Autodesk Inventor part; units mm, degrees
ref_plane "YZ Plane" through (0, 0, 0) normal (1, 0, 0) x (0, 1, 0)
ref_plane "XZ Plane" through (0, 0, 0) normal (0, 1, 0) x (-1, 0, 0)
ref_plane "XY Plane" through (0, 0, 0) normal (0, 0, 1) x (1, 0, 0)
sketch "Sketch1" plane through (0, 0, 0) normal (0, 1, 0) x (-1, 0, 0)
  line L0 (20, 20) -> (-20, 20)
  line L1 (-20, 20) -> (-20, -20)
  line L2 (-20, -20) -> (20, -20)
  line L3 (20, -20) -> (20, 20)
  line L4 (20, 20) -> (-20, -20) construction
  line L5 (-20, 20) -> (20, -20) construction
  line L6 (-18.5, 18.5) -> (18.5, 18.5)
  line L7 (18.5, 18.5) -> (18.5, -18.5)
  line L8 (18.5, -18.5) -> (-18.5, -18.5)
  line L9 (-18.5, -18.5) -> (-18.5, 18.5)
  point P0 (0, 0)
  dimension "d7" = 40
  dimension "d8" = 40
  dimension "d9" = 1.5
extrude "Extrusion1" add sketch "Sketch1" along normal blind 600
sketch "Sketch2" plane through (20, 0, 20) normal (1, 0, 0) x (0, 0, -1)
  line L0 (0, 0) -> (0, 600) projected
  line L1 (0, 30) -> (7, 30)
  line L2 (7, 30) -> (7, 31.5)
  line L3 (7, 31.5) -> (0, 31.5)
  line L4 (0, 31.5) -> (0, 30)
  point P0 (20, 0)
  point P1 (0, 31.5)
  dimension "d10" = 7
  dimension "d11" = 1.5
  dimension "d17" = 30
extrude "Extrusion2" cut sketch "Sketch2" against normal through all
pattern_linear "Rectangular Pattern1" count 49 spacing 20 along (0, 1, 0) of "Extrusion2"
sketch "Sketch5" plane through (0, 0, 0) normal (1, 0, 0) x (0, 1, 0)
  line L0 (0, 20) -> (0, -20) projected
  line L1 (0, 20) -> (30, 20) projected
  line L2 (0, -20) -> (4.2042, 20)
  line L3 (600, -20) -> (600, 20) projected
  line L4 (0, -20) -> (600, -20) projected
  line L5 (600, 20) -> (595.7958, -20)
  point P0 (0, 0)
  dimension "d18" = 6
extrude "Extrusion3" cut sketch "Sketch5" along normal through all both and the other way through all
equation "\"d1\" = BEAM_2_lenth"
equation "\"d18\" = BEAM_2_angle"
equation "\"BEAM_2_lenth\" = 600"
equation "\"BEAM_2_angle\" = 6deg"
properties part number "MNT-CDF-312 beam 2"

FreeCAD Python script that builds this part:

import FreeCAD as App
import Part
import Sketcher
from FreeCAD import Vector
Q = App.Units.Quantity


def add_polygon(sketch, points):
    """Adds a closed chain of lines whose ends are joined by coincident constraints."""
    first, n = sketch.GeometryCount, len(points)
    for a, b in zip(points, points[1:] + points[:1]):
        sketch.addGeometry(Part.LineSegment(App.Vector(*a, 0), App.Vector(*b, 0)), False)
    for i in range(n):
        sketch.addConstraint(Sketcher.Constraint("Coincident", first + i, 2, first + (i + 1) % n, 1))

doc = App.newDocument("Part")
body = doc.addObject("PartDesign::Body", "Body")

# Sketch on XZ plane
sketch1 = body.newObject("Sketcher::SketchObject", "Sketch")
sketch1.AttachmentSupport = (doc.getObject("XZ_Plane"), [""])
sketch1.MapMode = "FlatFace"
add_polygon(sketch1, [(-20, -20), (-20, 20), (20, 20), (20, -20)])  # lines 0-3
add_polygon(sketch1, [(18.5, -18.5), (18.5, 18.5), (-18.5, 18.5), (-18.5, -18.5)])  # lines 4-7
sketch1.addConstraint([
    Sketcher.Constraint("Vertical", 0),
    Sketcher.Constraint("Horizontal", 1),
    Sketcher.Constraint("Vertical", 2),
    Sketcher.Constraint("Horizontal", 3),
    Sketcher.Constraint("Vertical", 4),
    Sketcher.Constraint("Horizontal", 5),
    Sketcher.Constraint("Vertical", 6),
    Sketcher.Constraint("Horizontal", 7),
    Sketcher.Constraint("Symmetric", 0, 2, 2, 2, -1, 1),
    Sketcher.Constraint("Symmetric", 4, 2, 6, 2, -1, 1),
    Sketcher.Constraint("Equal", 3, 0),
    Sketcher.Constraint("Equal", 7, 4),
    Sketcher.Constraint("DistanceX", 1, 1, 1, 2, 40.0),
    Sketcher.Constraint("DistanceX", 4, 2, 1, 2, 1.5),
])
pad1 = body.newObject("PartDesign::Pad", "Pad")
pad1.Profile = sketch1
pad1.Length = 600
pad1.Reversed = True

# Sketch on YZ plane
sketch2 = body.newObject("Sketcher::SketchObject", "Sketch001")
sketch2.AttachmentSupport = (doc.getObject("YZ_Plane"), [""])
sketch2.MapMode = "FlatFace"
sketch2.AttachmentOffset = App.Placement(Vector(0, 0, 20), App.Rotation())
add_polygon(sketch2, [(31.5, 20), (30, 20), (30, 13), (31.5, 13)])  # lines 0-3
sketch2.addConstraint([
    Sketcher.Constraint("Horizontal", 0),
    Sketcher.Constraint("Vertical", 1),
    Sketcher.Constraint("Horizontal", 2),
    Sketcher.Constraint("Vertical", 3),
    Sketcher.Constraint("DistanceY", 1, 2, 1, 1, 7.0),
    Sketcher.Constraint("DistanceX", 0, 2, 0, 1, 1.5),
    Sketcher.Constraint("DistanceX", -1, 1, 0, 2, 30.0),
    Sketcher.Constraint("DistanceY", -1, 1, 0, 2, 20.0),
])
pocket1 = body.newObject("PartDesign::Pocket", "Pocket")
pocket1.Profile = sketch2
pocket1.Type = "ThroughAll"
doc.recompute()

linearpattern = body.newObject("PartDesign::LinearPattern", "LinearPattern")
linearpattern.Originals = [pocket1]
linearpattern.Direction = (doc.getObject("Y_Axis"), [""])
linearpattern.Mode = "offset"
linearpattern.Offset = 20
linearpattern.Occurrences = 49
body.Tip = linearpattern

# Sketch on YZ plane
sketch3 = body.newObject("Sketcher::SketchObject", "Sketch002")
sketch3.AttachmentSupport = (doc.getObject("YZ_Plane"), [""])
sketch3.MapMode = "FlatFace"
add_polygon(sketch3, [(4.2042, 20), (0, 20), (0, -20)])  # lines 0-2
add_polygon(sketch3, [(600, 20), (595.7958, -20), (600, -20)])  # lines 3-5
sketch3.addConstraint([
    Sketcher.Constraint("Horizontal", 0),
    Sketcher.Constraint("Vertical", 1),
    Sketcher.Constraint("Horizontal", 4),
    Sketcher.Constraint("Vertical", 5),
    Sketcher.Constraint("Symmetric", 0, 2, 1, 2, -1, 1),
    Sketcher.Constraint("Parallel", 2, 3),
    Sketcher.Constraint("Horizontal", 1, 2, 3, 2),
    Sketcher.Constraint("Horizontal", 2, 2, 5, 2),
    Sketcher.Constraint("DistanceY", 1, 2, 1, 1, 40.0),
    Sketcher.Constraint("Angle", 2, Q("84 deg")),
    Sketcher.Constraint("DistanceX", -1, 1, 4, 2, 600.0),
])
pocket2 = body.newObject("PartDesign::Pocket", "Pocket001")
pocket2.Profile = sketch3
pocket2.Type = "ThroughAll"
pocket2.Midplane = True

doc.recompute()
